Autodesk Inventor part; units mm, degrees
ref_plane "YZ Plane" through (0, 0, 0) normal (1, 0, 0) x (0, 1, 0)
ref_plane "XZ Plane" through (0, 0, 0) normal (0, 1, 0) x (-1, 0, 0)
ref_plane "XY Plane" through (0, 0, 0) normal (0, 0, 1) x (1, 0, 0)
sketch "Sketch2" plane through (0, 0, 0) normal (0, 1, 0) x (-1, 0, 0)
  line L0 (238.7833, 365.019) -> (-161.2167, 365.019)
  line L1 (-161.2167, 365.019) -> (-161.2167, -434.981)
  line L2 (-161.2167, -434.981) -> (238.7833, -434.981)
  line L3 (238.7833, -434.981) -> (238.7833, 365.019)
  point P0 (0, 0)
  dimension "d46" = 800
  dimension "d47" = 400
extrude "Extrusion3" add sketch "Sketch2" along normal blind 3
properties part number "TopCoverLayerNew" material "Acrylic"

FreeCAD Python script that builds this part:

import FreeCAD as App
import Part
import Sketcher

doc = App.newDocument("Part")
params = doc.addObject("Spreadsheet::Sheet", "Params")
for row, (alias, value) in enumerate([
    ("sketch1_width", "400 mm"),
    ("sketch1_height", "800 mm"),
    ("pad1_length", "3 mm"),
], start=1):
    params.set(f"A{row}", alias)
    params.set(f"B{row}", "=" + value)
    params.setAlias(f"B{row}", alias)

body = doc.addObject("PartDesign::Body", "Body")

# Sketch on XZ plane
sketch1 = body.newObject("Sketcher::SketchObject", "Sketch")
sketch1.AttachmentSupport = (doc.getObject("XZ_Plane"), [""])
sketch1.MapMode = "FlatFace"
sketch1.addGeometry(Part.LineSegment(App.Vector(-239, -435, 0), App.Vector(-239, 365, 0)), False)
sketch1.addGeometry(Part.LineSegment(App.Vector(-239, 365, 0), App.Vector(161, 365, 0)), False)
sketch1.addGeometry(Part.LineSegment(App.Vector(161, 365, 0), App.Vector(161, -435, 0)), False)
sketch1.addGeometry(Part.LineSegment(App.Vector(161, -435, 0), App.Vector(-239, -435, 0)), False)
sketch1.addConstraint(Sketcher.Constraint("Coincident", 0, 2, 1, 1))
sketch1.addConstraint(Sketcher.Constraint("Coincident", 1, 2, 2, 1))
sketch1.addConstraint(Sketcher.Constraint("Coincident", 2, 2, 3, 1))
sketch1.addConstraint(Sketcher.Constraint("Coincident", 3, 2, 0, 1))
sketch1.addConstraint(Sketcher.Constraint("Vertical", 0))
sketch1.addConstraint(Sketcher.Constraint("Horizontal", 1))
sketch1.addConstraint(Sketcher.Constraint("Vertical", 2))
sketch1.addConstraint(Sketcher.Constraint("Horizontal", 3))
sketch1.addConstraint(Sketcher.Constraint("DistanceX", 1, 1, 1, 2, 400.0))
sketch1.addConstraint(Sketcher.Constraint("DistanceY", 0, 1, 0, 2, 800.0))
sketch1.addConstraint(Sketcher.Constraint("DistanceY", -1, 1, 0, 2, 365.019))
sketch1.addConstraint(Sketcher.Constraint("DistanceX", 0, 2, -1, 1, 238.7833))
sketch1.setExpression("Constraints[8]", "Params.sketch1_width")
sketch1.setExpression("Constraints[9]", "Params.sketch1_height")
pad1 = body.newObject("PartDesign::Pad", "Pad")
pad1.Profile = sketch1
pad1.setExpression("Length", "Params.pad1_length")
pad1.Reversed = True

doc.recompute()
